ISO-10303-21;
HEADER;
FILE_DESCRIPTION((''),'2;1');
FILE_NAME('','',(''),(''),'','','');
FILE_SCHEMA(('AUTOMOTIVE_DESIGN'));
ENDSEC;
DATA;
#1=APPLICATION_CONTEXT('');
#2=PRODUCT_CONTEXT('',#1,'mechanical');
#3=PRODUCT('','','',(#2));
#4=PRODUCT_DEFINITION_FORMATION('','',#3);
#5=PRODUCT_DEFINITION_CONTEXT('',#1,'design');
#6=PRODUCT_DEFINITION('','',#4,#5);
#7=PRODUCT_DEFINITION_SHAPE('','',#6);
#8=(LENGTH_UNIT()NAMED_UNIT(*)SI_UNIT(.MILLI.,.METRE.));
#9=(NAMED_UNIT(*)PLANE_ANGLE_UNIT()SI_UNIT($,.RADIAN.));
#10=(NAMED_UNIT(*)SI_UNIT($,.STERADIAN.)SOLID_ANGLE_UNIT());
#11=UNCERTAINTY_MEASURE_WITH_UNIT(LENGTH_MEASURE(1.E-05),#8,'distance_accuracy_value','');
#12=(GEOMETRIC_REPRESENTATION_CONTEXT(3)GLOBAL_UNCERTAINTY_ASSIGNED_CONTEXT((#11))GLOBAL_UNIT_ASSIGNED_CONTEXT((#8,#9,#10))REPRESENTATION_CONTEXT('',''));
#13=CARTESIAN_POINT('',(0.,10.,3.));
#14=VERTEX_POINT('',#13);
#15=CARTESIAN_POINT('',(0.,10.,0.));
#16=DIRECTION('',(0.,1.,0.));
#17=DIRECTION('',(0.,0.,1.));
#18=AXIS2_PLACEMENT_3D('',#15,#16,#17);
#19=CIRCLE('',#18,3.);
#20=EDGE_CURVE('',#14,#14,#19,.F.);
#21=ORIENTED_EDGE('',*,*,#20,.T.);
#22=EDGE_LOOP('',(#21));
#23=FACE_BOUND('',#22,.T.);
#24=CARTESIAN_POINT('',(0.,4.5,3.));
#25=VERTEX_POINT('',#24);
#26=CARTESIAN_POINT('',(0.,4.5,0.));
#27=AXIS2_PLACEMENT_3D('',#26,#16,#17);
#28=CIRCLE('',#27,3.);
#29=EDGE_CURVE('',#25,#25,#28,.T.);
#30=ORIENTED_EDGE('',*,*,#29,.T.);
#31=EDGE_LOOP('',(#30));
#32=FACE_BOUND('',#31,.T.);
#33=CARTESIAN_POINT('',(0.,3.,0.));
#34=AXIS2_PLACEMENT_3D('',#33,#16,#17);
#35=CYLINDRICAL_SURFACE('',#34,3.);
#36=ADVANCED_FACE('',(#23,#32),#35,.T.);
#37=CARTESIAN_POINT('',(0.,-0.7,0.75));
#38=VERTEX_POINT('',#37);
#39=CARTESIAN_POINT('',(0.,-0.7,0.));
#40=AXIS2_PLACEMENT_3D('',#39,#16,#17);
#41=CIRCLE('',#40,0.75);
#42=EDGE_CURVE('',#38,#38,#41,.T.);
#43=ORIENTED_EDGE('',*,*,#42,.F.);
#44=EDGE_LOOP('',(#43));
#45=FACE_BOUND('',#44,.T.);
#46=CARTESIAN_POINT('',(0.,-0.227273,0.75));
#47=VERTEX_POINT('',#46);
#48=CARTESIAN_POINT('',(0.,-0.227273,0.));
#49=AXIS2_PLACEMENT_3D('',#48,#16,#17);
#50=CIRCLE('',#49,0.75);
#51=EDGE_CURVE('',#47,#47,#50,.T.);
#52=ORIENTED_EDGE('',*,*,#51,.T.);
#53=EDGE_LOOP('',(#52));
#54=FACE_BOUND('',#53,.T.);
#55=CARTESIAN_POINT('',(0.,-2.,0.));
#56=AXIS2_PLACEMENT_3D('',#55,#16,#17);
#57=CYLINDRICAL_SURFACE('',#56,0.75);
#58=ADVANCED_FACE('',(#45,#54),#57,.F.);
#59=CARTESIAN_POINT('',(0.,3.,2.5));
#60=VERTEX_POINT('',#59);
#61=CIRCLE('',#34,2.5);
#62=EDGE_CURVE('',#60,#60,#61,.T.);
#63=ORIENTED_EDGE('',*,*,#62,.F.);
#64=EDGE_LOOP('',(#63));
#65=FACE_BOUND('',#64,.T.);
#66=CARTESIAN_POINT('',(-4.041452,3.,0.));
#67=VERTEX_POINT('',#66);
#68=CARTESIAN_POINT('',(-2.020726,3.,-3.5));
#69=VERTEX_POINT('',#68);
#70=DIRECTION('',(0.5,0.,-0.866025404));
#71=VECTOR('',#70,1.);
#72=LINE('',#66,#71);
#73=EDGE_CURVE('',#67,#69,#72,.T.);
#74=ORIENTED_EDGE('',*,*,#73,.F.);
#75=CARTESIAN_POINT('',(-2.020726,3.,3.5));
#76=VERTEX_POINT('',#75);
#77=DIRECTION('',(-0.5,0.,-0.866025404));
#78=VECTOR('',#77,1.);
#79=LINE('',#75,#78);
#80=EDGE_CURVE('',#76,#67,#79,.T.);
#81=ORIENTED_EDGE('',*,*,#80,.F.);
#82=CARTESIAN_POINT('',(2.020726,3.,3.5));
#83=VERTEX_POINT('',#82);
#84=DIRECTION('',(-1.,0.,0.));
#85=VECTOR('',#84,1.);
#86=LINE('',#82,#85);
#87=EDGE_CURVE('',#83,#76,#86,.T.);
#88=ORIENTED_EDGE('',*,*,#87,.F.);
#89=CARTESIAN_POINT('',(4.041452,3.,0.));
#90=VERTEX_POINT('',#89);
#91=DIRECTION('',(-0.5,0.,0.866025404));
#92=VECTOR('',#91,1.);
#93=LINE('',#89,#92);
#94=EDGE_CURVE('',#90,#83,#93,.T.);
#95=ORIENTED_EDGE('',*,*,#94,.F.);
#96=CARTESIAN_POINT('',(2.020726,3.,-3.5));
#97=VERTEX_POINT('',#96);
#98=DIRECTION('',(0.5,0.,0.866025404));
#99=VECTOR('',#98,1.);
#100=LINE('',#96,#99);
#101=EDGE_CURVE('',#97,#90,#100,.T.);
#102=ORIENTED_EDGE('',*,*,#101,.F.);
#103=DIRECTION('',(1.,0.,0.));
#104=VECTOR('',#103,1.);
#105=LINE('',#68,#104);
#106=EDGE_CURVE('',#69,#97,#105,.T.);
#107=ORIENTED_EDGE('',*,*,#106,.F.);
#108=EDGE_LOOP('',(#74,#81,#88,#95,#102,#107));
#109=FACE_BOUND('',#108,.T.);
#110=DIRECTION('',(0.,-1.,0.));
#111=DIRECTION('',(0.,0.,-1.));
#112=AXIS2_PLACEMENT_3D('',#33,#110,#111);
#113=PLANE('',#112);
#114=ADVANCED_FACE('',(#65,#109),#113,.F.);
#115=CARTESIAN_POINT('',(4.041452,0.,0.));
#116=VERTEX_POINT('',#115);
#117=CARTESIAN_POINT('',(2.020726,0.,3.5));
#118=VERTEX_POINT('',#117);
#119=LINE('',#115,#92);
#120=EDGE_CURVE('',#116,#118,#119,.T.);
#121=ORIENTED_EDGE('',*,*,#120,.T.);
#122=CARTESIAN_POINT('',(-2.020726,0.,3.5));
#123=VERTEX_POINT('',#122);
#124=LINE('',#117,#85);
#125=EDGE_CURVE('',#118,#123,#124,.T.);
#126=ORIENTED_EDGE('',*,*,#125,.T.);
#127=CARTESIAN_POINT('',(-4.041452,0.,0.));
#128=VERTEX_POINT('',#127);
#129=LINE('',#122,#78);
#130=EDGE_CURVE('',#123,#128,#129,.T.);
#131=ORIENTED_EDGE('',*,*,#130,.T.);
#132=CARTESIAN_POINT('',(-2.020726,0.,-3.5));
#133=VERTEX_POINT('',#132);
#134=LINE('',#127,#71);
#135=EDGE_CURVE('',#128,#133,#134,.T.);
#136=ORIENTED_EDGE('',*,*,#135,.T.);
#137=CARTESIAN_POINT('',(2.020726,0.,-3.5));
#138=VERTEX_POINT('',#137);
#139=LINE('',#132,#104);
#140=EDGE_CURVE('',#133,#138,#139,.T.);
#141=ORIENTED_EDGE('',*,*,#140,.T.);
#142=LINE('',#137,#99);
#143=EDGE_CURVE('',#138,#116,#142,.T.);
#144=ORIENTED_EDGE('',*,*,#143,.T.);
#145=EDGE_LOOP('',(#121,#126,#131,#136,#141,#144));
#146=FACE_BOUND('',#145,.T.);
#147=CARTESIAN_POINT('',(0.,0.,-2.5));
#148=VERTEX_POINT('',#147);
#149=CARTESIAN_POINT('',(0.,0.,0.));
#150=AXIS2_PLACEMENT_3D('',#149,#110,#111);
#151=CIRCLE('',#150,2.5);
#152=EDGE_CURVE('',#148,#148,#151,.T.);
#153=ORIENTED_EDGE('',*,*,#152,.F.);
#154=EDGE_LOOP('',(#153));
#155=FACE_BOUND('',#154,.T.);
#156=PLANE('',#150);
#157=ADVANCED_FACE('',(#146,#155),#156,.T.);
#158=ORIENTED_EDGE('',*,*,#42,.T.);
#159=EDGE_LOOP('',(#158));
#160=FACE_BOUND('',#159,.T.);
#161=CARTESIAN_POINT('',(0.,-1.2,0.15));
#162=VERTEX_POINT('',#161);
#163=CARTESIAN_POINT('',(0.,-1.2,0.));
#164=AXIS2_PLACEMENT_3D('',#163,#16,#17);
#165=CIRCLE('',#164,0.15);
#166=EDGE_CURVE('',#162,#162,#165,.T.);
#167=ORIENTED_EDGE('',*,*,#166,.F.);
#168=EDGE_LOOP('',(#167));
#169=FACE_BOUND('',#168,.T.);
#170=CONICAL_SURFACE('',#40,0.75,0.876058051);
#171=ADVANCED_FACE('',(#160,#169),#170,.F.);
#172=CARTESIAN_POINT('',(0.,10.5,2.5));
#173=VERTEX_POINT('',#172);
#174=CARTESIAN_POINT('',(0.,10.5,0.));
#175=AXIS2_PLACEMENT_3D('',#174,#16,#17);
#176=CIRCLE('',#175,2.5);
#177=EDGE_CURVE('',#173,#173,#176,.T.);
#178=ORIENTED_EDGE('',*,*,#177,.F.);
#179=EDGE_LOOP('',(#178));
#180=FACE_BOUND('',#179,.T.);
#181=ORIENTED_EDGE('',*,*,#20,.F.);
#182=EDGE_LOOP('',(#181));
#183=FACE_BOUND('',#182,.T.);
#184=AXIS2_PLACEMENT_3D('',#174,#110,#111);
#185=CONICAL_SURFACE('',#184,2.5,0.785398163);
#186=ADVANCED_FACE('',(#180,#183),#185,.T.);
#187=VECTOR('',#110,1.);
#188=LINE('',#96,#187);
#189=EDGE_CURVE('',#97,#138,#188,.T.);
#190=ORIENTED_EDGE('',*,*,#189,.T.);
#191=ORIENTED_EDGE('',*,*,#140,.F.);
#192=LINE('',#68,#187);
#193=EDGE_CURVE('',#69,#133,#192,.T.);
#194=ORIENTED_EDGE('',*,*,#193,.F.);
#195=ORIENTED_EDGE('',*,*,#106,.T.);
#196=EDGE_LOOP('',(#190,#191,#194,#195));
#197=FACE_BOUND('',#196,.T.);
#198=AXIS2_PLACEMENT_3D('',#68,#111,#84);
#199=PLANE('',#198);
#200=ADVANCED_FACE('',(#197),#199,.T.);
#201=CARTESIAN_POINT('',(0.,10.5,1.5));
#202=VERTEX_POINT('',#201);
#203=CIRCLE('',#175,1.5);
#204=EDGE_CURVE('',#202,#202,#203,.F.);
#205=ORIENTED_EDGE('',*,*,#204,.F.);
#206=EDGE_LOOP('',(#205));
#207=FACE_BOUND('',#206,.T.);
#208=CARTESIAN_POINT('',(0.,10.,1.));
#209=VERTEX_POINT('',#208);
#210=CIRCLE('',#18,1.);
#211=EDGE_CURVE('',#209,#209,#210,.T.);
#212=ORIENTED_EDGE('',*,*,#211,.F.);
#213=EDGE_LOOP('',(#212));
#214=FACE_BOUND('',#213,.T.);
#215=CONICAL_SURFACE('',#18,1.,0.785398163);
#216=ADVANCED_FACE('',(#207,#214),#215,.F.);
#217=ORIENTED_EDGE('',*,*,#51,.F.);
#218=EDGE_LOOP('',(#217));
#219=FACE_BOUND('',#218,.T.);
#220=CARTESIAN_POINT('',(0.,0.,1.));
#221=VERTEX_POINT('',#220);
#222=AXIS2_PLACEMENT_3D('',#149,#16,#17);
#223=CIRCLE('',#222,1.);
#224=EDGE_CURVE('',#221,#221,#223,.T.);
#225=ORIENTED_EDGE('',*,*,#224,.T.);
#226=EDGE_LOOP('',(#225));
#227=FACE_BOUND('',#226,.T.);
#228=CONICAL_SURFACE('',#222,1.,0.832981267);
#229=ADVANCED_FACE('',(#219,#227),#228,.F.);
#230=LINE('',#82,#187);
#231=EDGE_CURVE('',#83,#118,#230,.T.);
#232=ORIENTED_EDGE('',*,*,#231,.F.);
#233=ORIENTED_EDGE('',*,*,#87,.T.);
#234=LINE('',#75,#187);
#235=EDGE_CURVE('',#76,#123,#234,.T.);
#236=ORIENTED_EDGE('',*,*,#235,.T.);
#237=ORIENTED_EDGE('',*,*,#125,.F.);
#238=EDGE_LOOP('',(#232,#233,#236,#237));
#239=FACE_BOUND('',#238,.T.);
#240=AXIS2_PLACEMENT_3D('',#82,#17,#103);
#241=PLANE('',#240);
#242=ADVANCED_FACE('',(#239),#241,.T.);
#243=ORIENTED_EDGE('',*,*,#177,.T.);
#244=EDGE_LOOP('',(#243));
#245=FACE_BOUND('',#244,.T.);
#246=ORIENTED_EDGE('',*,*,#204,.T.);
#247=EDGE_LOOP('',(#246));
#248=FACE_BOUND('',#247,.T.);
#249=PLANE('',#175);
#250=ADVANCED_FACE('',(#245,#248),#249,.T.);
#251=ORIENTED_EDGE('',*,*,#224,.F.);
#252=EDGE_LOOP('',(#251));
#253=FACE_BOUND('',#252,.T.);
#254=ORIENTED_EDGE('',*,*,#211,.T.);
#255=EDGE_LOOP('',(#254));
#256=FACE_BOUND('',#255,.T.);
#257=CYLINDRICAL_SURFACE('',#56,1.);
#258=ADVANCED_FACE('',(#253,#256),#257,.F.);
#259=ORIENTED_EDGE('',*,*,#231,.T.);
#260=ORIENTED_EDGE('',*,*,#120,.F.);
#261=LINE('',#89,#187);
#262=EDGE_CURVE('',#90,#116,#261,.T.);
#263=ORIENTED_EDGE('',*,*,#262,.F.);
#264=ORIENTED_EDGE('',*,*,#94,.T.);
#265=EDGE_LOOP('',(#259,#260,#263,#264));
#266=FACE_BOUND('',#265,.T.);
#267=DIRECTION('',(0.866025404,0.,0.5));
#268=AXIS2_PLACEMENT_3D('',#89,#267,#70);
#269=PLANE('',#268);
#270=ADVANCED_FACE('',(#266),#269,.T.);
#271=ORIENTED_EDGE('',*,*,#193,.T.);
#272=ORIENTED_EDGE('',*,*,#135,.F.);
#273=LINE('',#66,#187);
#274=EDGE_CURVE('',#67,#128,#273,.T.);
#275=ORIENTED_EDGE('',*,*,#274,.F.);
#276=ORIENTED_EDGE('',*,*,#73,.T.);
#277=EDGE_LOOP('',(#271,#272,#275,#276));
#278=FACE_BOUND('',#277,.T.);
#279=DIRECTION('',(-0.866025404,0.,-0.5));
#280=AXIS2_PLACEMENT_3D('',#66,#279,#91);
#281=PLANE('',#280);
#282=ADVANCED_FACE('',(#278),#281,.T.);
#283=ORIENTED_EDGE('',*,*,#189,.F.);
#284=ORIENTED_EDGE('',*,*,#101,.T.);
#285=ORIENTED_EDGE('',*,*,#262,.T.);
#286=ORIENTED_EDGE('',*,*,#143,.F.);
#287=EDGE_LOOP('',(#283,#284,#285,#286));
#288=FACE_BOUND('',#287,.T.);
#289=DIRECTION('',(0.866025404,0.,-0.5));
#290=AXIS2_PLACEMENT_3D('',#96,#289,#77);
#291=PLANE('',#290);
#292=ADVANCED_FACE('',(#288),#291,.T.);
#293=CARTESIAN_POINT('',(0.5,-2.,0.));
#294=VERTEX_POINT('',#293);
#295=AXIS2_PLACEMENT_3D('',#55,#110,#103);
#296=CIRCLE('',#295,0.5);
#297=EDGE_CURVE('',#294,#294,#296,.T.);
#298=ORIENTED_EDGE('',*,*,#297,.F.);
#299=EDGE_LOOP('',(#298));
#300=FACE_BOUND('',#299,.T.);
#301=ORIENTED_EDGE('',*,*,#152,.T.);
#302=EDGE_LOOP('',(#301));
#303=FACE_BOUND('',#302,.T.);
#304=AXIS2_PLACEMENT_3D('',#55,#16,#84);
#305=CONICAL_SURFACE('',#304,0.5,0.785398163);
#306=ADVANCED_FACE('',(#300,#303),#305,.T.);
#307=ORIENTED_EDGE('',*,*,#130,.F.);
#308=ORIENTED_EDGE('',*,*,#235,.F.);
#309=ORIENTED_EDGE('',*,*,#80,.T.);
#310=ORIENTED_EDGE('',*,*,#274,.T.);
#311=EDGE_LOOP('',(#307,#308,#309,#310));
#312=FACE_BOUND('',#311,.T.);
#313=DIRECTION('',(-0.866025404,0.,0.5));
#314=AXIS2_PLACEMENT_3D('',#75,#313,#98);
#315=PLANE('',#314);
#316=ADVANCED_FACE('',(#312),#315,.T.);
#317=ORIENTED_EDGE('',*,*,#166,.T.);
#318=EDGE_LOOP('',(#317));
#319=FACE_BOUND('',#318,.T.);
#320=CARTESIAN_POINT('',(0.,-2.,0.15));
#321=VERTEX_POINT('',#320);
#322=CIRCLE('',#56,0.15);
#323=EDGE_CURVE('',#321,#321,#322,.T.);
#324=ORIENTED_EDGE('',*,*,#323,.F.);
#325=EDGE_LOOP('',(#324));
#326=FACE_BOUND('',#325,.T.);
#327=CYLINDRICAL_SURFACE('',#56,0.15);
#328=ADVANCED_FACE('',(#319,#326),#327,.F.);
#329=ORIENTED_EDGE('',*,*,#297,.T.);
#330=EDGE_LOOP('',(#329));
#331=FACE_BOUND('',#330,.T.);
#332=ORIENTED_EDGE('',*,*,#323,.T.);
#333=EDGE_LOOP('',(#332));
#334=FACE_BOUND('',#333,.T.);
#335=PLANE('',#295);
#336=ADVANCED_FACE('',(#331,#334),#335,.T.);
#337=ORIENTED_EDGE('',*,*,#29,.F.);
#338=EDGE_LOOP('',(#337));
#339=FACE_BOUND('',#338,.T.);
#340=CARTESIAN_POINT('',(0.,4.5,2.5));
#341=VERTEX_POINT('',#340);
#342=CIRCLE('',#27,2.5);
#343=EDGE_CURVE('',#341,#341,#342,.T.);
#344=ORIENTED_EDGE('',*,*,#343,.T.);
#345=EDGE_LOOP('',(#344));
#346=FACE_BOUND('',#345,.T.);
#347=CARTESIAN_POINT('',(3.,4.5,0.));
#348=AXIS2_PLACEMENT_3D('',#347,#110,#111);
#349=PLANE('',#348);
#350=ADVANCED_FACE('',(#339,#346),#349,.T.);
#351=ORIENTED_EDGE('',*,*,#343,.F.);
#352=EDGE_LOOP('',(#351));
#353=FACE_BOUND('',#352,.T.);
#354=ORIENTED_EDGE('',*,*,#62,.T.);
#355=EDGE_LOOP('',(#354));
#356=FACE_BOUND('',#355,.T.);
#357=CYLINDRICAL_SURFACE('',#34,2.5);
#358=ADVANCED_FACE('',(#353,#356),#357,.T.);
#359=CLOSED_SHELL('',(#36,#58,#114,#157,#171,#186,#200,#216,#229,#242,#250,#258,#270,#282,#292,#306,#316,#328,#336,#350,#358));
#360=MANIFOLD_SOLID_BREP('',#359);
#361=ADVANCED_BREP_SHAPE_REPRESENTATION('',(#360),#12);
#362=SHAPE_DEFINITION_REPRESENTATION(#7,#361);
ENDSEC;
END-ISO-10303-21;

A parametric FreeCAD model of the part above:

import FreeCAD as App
import Part
import Sketcher
from FreeCAD import Vector
Q = App.Units.Quantity


def edges_at(feature, points):
    """Names of the edges that pass closest to the given points."""
    edges = feature.Shape.Edges
    near = lambda p: min(range(len(edges)), key=lambda i: edges[i].distToShape(Part.Vertex(*p))[0])
    return sorted({f"Edge{near(p) + 1}" for p in points})


def add_polygon(sketch, points):
    """Adds a closed chain of lines whose ends are joined by coincident constraints."""
    first, n = sketch.GeometryCount, len(points)
    for a, b in zip(points, points[1:] + points[:1]):
        sketch.addGeometry(Part.LineSegment(App.Vector(*a, 0), App.Vector(*b, 0)), False)
    for i in range(n):
        sketch.addConstraint(Sketcher.Constraint("Coincident", first + i, 2, first + (i + 1) % n, 1))

doc = App.newDocument("Part")
body = doc.addObject("PartDesign::Body", "Body")

sketch1 = body.newObject("Sketcher::SketchObject", "Sketch")
sketch1.AttachmentSupport = (doc.getObject("XZ_Plane"), [""])
sketch1.MapMode = "FlatFace"
add_polygon(sketch1, [(-2, 3.5), (-4, 0), (-2, -3.5), (2, -3.5), (4, 0), (2, 3.5)])
sketch1.addConstraint(Sketcher.Constraint("Horizontal", 2))
sketch1.addConstraint(Sketcher.Constraint("Horizontal", 5))
sketch1.addConstraint(Sketcher.Constraint("Symmetric", 0, 2, 3, 2, -1, 1))
sketch1.addConstraint(Sketcher.Constraint("Symmetric", 1, 2, 4, 2, -1, 1))
sketch1.addConstraint(Sketcher.Constraint("PointOnObject", 0, 2, -1))
sketch1.addConstraint(Sketcher.Constraint("Parallel", 0, 3))
sketch1.addConstraint(Sketcher.Constraint("Vertical", 2, 2, 4, 2))
sketch1.addConstraint(Sketcher.Constraint("Angle", 0, Q("-120 deg")))
sketch1.addConstraint(Sketcher.Constraint("DistanceY", 2, 2, 4, 2, Q("7 mm")))
sketch1.addConstraint(Sketcher.Constraint("DistanceX", 2, 1, 2, 2, Q("4.041452 mm")))
pad1 = body.newObject("PartDesign::Pad", "Pad")
pad1.Profile = sketch1
pad1.Length = 3
pad1.Reversed = True

sketch2 = body.newObject("Sketcher::SketchObject", "Sketch001")
sketch2.AttachmentSupport = (doc.getObject("XY_Plane"), [""])
sketch2.MapMode = "FlatFace"
add_polygon(sketch2, [(2.5, 3), (0, 3), (0, 10.5), (3, 10.5), (3, 4.5), (2.5, 4.5)])
sketch2.addConstraint(Sketcher.Constraint("Horizontal", 0))
sketch2.addConstraint(Sketcher.Constraint("Vertical", 1))
sketch2.addConstraint(Sketcher.Constraint("Horizontal", 2))
sketch2.addConstraint(Sketcher.Constraint("Vertical", 3))
sketch2.addConstraint(Sketcher.Constraint("Horizontal", 4))
sketch2.addConstraint(Sketcher.Constraint("Vertical", 5))
sketch2.addConstraint(Sketcher.Constraint("PointOnObject", 0, 2, -2))
sketch2.addConstraint(Sketcher.Constraint("DistanceX", 2, 1, 2, 2, Q("3 mm")))
sketch2.addConstraint(Sketcher.Constraint("DistanceY", 3, 2, 3, 1, Q("6 mm")))
sketch2.addConstraint(Sketcher.Constraint("DistanceX", 0, 2, 0, 1, Q("2.5 mm")))
sketch2.addConstraint(Sketcher.Constraint("DistanceY", 1, 1, 1, 2, Q("7.5 mm")))
sketch2.addConstraint(Sketcher.Constraint("DistanceY", -1, 1, 0, 2, Q("3 mm")))
revolution = body.newObject("PartDesign::Revolution", "Revolution")
revolution.Profile = sketch2
revolution.ReferenceAxis = (sketch2, ["V_Axis"])
revolution.Angle = 360

sketch3 = body.newObject("Sketcher::SketchObject", "Sketch002")
sketch3.AttachmentSupport = (doc.getObject("XY_Plane"), [""])
sketch3.MapMode = "FlatFace"
add_polygon(sketch3, [(2.5, 0), (0, 0), (0, -2), (0.5, -2)])
sketch3.addConstraint(Sketcher.Constraint("Horizontal", 0))
sketch3.addConstraint(Sketcher.Constraint("Vertical", 1))
sketch3.addConstraint(Sketcher.Constraint("Horizontal", 2))
sketch3.addConstraint(Sketcher.Constraint("Coincident", 0, 2, -1, 1))
sketch3.addConstraint(Sketcher.Constraint("DistanceY", 1, 2, 1, 1, Q("2 mm")))
sketch3.addConstraint(Sketcher.Constraint("Angle", 3, Q("45 deg")))
sketch3.addConstraint(Sketcher.Constraint("DistanceX", 0, 2, 0, 1, Q("2.5 mm")))
revolution2 = body.newObject("PartDesign::Revolution", "Revolution001")
revolution2.Profile = sketch3
revolution2.ReferenceAxis = (sketch3, ["V_Axis"])
revolution2.Angle = 360

sketch4 = body.newObject("Sketcher::SketchObject", "Sketch003")
sketch4.AttachmentSupport = (doc.getObject("XY_Plane"), [""])
sketch4.MapMode = "FlatFace"
add_polygon(sketch4, [(0.15, -2), (0, -2), (0, 10.5), (1, 10.5), (1, 0), (0.75, -0.23), (0.75, -0.7), (0.15, -1.2)])
sketch4.addConstraint(Sketcher.Constraint("Horizontal", 0))
sketch4.addConstraint(Sketcher.Constraint("Vertical", 1))
sketch4.addConstraint(Sketcher.Constraint("Horizontal", 2))
sketch4.addConstraint(Sketcher.Constraint("Vertical", 3))
sketch4.addConstraint(Sketcher.Constraint("Vertical", 5))
sketch4.addConstraint(Sketcher.Constraint("Vertical", 7))
sketch4.addConstraint(Sketcher.Constraint("PointOnObject", 0, 2, -2))
sketch4.addConstraint(Sketcher.Constraint("PointOnObject", 3, 2, -1))
sketch4.addConstraint(Sketcher.Constraint("DistanceX", 2, 1, 2, 2, Q("1 mm")))
sketch4.addConstraint(Sketcher.Constraint("DistanceY", 1, 1, 1, 2, Q("12.5 mm")))
sketch4.addConstraint(Sketcher.Constraint("DistanceY", 3, 2, 3, 1, Q("10.5 mm")))
sketch4.addConstraint(Sketcher.Constraint("DistanceY", 7, 2, 7, 1, Q("0.8 mm")))
sketch4.addConstraint(Sketcher.Constraint("DistanceX", 0, 2, 0, 1, Q("0.15 mm")))
sketch4.addConstraint(Sketcher.Constraint("DistanceY", 5, 2, -1, 1, Q("0.7 mm")))
sketch4.addConstraint(Sketcher.Constraint("DistanceX", 6, 2, 5, 2, Q("0.6 mm")))
sketch4.addConstraint(Sketcher.Constraint("DistanceY", 5, 2, 5, 1, Q("0.472727 mm")))
groove = body.newObject("PartDesign::Groove", "Groove")
groove.Profile = sketch4
groove.ReferenceAxis = (sketch4, ["V_Axis"])
groove.Angle = 360
doc.recompute()

chamfer = body.newObject("PartDesign::Chamfer", "Chamfer")
chamfer.Base = (groove, edges_at(groove, [(-3, 10.5, 0), (-1, 10.5, 0)]))
chamfer.Size = 0.5

doc.recompute()
